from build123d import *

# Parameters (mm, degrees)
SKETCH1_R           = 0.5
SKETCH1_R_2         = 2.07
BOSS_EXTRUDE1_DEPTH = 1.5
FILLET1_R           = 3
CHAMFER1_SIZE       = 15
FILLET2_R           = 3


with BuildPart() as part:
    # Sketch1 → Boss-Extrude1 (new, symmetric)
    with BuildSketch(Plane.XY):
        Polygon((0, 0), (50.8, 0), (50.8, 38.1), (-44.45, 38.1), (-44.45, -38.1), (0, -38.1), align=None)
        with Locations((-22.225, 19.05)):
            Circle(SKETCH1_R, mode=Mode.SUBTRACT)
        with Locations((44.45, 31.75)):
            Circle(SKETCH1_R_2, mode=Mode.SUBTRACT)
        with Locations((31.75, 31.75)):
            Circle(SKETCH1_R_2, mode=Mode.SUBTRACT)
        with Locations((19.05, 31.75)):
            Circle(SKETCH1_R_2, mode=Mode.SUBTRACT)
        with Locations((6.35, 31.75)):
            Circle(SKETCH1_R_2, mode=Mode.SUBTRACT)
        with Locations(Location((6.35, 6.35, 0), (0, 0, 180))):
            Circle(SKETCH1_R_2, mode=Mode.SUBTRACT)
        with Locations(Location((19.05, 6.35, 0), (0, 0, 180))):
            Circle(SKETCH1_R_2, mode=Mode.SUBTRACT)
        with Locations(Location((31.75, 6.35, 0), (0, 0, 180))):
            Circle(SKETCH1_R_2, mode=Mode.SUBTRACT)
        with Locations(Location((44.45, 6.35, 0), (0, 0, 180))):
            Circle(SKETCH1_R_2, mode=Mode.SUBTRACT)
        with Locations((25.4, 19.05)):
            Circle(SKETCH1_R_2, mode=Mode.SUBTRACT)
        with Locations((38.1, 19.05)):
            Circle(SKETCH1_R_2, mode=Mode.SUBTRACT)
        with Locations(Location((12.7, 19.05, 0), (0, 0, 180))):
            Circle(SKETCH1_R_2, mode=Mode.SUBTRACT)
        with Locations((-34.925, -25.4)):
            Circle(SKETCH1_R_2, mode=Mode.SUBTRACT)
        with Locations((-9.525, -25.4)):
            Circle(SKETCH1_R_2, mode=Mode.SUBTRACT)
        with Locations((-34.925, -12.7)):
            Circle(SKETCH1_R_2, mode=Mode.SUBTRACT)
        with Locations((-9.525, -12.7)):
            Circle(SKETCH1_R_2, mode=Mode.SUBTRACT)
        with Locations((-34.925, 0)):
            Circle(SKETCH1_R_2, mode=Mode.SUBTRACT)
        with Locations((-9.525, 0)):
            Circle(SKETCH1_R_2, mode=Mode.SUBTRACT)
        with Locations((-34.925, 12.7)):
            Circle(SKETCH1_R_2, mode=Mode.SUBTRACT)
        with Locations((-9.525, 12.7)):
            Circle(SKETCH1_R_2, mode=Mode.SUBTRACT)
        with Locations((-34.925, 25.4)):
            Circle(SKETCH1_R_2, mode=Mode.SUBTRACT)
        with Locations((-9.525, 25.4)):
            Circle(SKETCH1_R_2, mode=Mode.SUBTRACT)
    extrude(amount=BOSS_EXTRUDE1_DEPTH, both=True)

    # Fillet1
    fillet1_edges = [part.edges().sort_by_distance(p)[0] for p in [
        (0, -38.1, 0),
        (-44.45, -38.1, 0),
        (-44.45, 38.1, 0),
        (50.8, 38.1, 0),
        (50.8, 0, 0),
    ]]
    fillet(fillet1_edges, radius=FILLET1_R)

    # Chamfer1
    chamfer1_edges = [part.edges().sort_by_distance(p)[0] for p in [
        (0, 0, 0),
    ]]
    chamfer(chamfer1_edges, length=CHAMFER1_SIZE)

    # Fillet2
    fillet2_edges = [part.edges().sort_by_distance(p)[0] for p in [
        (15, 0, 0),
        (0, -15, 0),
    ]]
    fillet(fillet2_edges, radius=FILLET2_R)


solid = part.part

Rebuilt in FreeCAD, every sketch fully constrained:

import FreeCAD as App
import Part
import Sketcher
from FreeCAD import Vector
Q = App.Units.Quantity


def edges_at(feature, points):
    """Names of the edges that pass closest to the given points."""
    edges = feature.Shape.Edges
    near = lambda p: min(range(len(edges)), key=lambda i: edges[i].distToShape(Part.Vertex(*p))[0])
    return sorted({f"Edge{near(p) + 1}" for p in points})

doc = App.newDocument("Part")
body = doc.addObject("PartDesign::Body", "Body")

# Sketch on XY plane
sketch1 = body.newObject("Sketcher::SketchObject", "Sketch")
sketch1.AttachmentSupport = (doc.getObject("XY_Plane"), [""])
sketch1.MapMode = "FlatFace"
sketch1.addGeometry([
    Part.LineSegment(Vector(0, 0, 0), Vector(50.8, 0, 0)),  # 0
    Part.LineSegment(Vector(50.8, 0, 0), Vector(50.8, 38.1, 0)),  # 1
    Part.LineSegment(Vector(50.8, 38.1, 0), Vector(-44.5, 38.1, 0)),  # 2
    Part.LineSegment(Vector(-44.5, 38.1, 0), Vector(-44.5, -38.1, 0)),  # 3
    Part.LineSegment(Vector(-44.5, -38.1, 0), Vector(0, -38.1, 0)),  # 4
    Part.LineSegment(Vector(0, -38.1, 0), Vector(0, 0, 0)),  # 5
    Part.Circle(Vector(-34.9, -25.4, 0), Vector(0, 0, 1), 2.1),  # 6
    Part.Circle(Vector(-34.9, -12.7, 0), Vector(0, 0, 1), 2.1),  # 7
    Part.Circle(Vector(-9.5, -25.4, 0), Vector(0, 0, 1), 2.1),  # 8
    Part.Circle(Vector(-9.5, -12.7, 0), Vector(0, 0, 1), 2.1),  # 9
    Part.Circle(Vector(-34.9, 0, 0), Vector(0, 0, 1), 2.1),  # 10
    Part.Circle(Vector(-9.5, 0, 0), Vector(0, 0, 1), 2.1),  # 11
    Part.Circle(Vector(-34.9, 12.7, 0), Vector(0, 0, 1), 2.1),  # 12
    Part.Circle(Vector(-9.5, 12.7, 0), Vector(0, 0, 1), 2.1),  # 13
    Part.Circle(Vector(-34.9, 25.4, 0), Vector(0, 0, 1), 2.1),  # 14
    Part.Circle(Vector(-22.2, 19.1, 0), Vector(0, 0, 1), 0.5),  # 15
    Part.Circle(Vector(-9.5, 25.4, 0), Vector(0, 0, 1), 2.1),  # 16
    Part.Circle(Vector(6.3, 6.3, 0), Vector(0, 0, 1), 2.1),  # 17
    Part.Circle(Vector(19.1, 6.3, 0), Vector(0, 0, 1), 2.1),  # 18
    Part.Circle(Vector(31.8, 6.3, 0), Vector(0, 0, 1), 2.1),  # 19
    Part.Circle(Vector(44.5, 6.3, 0), Vector(0, 0, 1), 2.1),  # 20
    Part.Circle(Vector(12.7, 19.1, 0), Vector(0, 0, 1), 2.1),  # 21
    Part.Circle(Vector(25.4, 19.1, 0), Vector(0, 0, 1), 2.1),  # 22
    Part.Circle(Vector(6.3, 31.8, 0), Vector(0, 0, 1), 2.1),  # 23
    Part.Circle(Vector(19.1, 31.8, 0), Vector(0, 0, 1), 2.1),  # 24
    Part.Circle(Vector(38.1, 19.1, 0), Vector(0, 0, 1), 2.1),  # 25
    Part.Circle(Vector(31.8, 31.8, 0), Vector(0, 0, 1), 2.1),  # 26
    Part.Circle(Vector(44.5, 31.8, 0), Vector(0, 0, 1), 2.1),  # 27
], False)
sketch1.addConstraint([
    Sketcher.Constraint("Coincident", 0, 2, 1, 1),
    Sketcher.Constraint("Coincident", 1, 2, 2, 1),
    Sketcher.Constraint("Coincident", 2, 2, 3, 1),
    Sketcher.Constraint("Coincident", 3, 2, 4, 1),
    Sketcher.Constraint("Coincident", 4, 2, 5, 1),
    Sketcher.Constraint("Coincident", 5, 2, 0, 1),
    Sketcher.Constraint("Horizontal", 0),
    Sketcher.Constraint("Vertical", 1),
    Sketcher.Constraint("Horizontal", 2),
    Sketcher.Constraint("Vertical", 3),
    Sketcher.Constraint("Horizontal", 4),
    Sketcher.Constraint("Vertical", 5),
    Sketcher.Constraint("Coincident", 5, 2, -1, 1),
    Sketcher.Constraint("Equal", 6, 7),
    Sketcher.Constraint("Equal", 7, 8),
    Sketcher.Constraint("Equal", 8, 9),
    Sketcher.Constraint("Equal", 9, 10),
    Sketcher.Constraint("Equal", 10, 11),
    Sketcher.Constraint("Equal", 11, 12),
    Sketcher.Constraint("Equal", 12, 13),
    Sketcher.Constraint("Equal", 13, 14),
    Sketcher.Constraint("Equal", 14, 16),
    Sketcher.Constraint("Equal", 16, 17),
    Sketcher.Constraint("Equal", 17, 18),
    Sketcher.Constraint("Equal", 18, 19),
    Sketcher.Constraint("Equal", 19, 20),
    Sketcher.Constraint("Equal", 20, 21),
    Sketcher.Constraint("Equal", 21, 22),
    Sketcher.Constraint("Equal", 22, 23),
    Sketcher.Constraint("Equal", 23, 24),
    Sketcher.Constraint("Equal", 24, 25),
    Sketcher.Constraint("Equal", 25, 26),
    Sketcher.Constraint("Equal", 26, 27),
    Sketcher.Constraint("Symmetric", 7, 3, 12, 3, -1),
    Sketcher.Constraint("Symmetric", 9, 3, 13, 3, -1),
    Sketcher.Constraint("Symmetric", 6, 3, 14, 3, -1),
    Sketcher.Constraint("Symmetric", 8, 3, 16, 3, -1),
    Sketcher.Constraint("PointOnObject", 10, 3, -1),
    Sketcher.Constraint("PointOnObject", 11, 3, -1),
    Sketcher.Constraint("Horizontal", 6, 3, 8, 3),
    Sketcher.Constraint("Horizontal", 7, 3, 9, 3),
    Sketcher.Constraint("Horizontal", 17, 3, 18, 3),
    Sketcher.Constraint("Horizontal", 18, 3, 19, 3),
    Sketcher.Constraint("Horizontal", 19, 3, 20, 3),
    Sketcher.Constraint("Horizontal", 15, 3, 21, 3),
    Sketcher.Constraint("Horizontal", 21, 3, 22, 3),
    Sketcher.Constraint("Horizontal", 23, 3, 24, 3),
    Sketcher.Constraint("Horizontal", 22, 3, 25, 3),
    Sketcher.Constraint("Horizontal", 24, 3, 26, 3),
    Sketcher.Constraint("Horizontal", 26, 3, 27, 3),
    Sketcher.Constraint("Vertical", 6, 3, 7, 3),
    Sketcher.Constraint("Vertical", 8, 3, 9, 3),
    Sketcher.Constraint("Vertical", 7, 3, 10, 3),
    Sketcher.Constraint("Vertical", 9, 3, 11, 3),
    Sketcher.Constraint("Vertical", 17, 3, 23, 3),
    Sketcher.Constraint("Vertical", 18, 3, 24, 3),
    Sketcher.Constraint("Vertical", 19, 3, 26, 3),
    Sketcher.Constraint("Vertical", 20, 3, 27, 3),
    Sketcher.Constraint("Equal", 1, 5),
    Sketcher.Constraint("DistanceX", 0, 1, 0, 2, Q("2 in")),
    Sketcher.Constraint("DistanceY", 3, 2, 3, 1, Q("3 in")),
    Sketcher.Constraint("DistanceY", 6, 3, -1, 1, Q("1 in")),
    Sketcher.Constraint("DistanceX", -1, 1, 22, 3, Q("1 in")),
    Sketcher.Constraint("DistanceX", 6, 3, 8, 3, Q("1 in")),
    Sketcher.Constraint("DistanceY", 7, 3, 12, 3, Q("1 in")),
    Sketcher.Constraint("DistanceX", 17, 3, 19, 3, Q("1 in")),
    Sketcher.Constraint("DistanceX", 18, 3, 20, 3, Q("1 in")),
    Sketcher.Constraint("DistanceY", 17, 3, 23, 3, Q("1 in")),
    Sketcher.Constraint("DistanceX", 2, 2, 2, 1, Q("3.75 in")),
    Sketcher.Constraint("DistanceX", -1, 1, 21, 3, Q("0.5 in")),
    Sketcher.Constraint("DistanceX", -1, 1, 25, 3, Q("1.5 in")),
    Sketcher.Constraint("DistanceX", 14, 3, 15, 3, Q("0.5 in")),
    Sketcher.Constraint("DistanceY", 17, 3, 15, 3, Q("0.5 in")),
    Sketcher.Constraint("DistanceX", 17, 3, 18, 3, Q("0.5 in")),
    Sketcher.Constraint("Diameter", 6, 4.14),
    Sketcher.Constraint("Diameter", 15, 1.0),
    Sketcher.Constraint("DistanceY", -1, 1, 15, 3, Q("0.75 in")),
    Sketcher.Constraint("DistanceX", -1, 1, 17, 3, Q("0.25 in")),
    Sketcher.Constraint("DistanceX", 6, 3, -1, 1, Q("1.375 in")),
])
pad1 = body.newObject("PartDesign::Pad", "Pad")
pad1.Profile = sketch1
pad1.Length = 3
pad1.Midplane = True
doc.recompute()

fillet = body.newObject("PartDesign::Fillet", "Fillet")
fillet.Base = (pad1, edges_at(pad1, [
    (0, -38.1, 0),
    (-44.45, -38.1, 0),
    (-44.45, 38.1, 0),
    (50.8, 38.1, 0),
    (50.8, 0, 0),
]))
fillet.Radius = 3
doc.recompute()

chamfer = body.newObject("PartDesign::Chamfer", "Chamfer")
chamfer.Base = (fillet, edges_at(fillet, [(0, 0, 0)]))
chamfer.Size = 15
doc.recompute()

fillet2 = body.newObject("PartDesign::Fillet", "Fillet001")
fillet2.Base = (chamfer, edges_at(chamfer, [(15, 0, 0), (0, -15, 0)]))
fillet2.Radius = 3

doc.recompute()
